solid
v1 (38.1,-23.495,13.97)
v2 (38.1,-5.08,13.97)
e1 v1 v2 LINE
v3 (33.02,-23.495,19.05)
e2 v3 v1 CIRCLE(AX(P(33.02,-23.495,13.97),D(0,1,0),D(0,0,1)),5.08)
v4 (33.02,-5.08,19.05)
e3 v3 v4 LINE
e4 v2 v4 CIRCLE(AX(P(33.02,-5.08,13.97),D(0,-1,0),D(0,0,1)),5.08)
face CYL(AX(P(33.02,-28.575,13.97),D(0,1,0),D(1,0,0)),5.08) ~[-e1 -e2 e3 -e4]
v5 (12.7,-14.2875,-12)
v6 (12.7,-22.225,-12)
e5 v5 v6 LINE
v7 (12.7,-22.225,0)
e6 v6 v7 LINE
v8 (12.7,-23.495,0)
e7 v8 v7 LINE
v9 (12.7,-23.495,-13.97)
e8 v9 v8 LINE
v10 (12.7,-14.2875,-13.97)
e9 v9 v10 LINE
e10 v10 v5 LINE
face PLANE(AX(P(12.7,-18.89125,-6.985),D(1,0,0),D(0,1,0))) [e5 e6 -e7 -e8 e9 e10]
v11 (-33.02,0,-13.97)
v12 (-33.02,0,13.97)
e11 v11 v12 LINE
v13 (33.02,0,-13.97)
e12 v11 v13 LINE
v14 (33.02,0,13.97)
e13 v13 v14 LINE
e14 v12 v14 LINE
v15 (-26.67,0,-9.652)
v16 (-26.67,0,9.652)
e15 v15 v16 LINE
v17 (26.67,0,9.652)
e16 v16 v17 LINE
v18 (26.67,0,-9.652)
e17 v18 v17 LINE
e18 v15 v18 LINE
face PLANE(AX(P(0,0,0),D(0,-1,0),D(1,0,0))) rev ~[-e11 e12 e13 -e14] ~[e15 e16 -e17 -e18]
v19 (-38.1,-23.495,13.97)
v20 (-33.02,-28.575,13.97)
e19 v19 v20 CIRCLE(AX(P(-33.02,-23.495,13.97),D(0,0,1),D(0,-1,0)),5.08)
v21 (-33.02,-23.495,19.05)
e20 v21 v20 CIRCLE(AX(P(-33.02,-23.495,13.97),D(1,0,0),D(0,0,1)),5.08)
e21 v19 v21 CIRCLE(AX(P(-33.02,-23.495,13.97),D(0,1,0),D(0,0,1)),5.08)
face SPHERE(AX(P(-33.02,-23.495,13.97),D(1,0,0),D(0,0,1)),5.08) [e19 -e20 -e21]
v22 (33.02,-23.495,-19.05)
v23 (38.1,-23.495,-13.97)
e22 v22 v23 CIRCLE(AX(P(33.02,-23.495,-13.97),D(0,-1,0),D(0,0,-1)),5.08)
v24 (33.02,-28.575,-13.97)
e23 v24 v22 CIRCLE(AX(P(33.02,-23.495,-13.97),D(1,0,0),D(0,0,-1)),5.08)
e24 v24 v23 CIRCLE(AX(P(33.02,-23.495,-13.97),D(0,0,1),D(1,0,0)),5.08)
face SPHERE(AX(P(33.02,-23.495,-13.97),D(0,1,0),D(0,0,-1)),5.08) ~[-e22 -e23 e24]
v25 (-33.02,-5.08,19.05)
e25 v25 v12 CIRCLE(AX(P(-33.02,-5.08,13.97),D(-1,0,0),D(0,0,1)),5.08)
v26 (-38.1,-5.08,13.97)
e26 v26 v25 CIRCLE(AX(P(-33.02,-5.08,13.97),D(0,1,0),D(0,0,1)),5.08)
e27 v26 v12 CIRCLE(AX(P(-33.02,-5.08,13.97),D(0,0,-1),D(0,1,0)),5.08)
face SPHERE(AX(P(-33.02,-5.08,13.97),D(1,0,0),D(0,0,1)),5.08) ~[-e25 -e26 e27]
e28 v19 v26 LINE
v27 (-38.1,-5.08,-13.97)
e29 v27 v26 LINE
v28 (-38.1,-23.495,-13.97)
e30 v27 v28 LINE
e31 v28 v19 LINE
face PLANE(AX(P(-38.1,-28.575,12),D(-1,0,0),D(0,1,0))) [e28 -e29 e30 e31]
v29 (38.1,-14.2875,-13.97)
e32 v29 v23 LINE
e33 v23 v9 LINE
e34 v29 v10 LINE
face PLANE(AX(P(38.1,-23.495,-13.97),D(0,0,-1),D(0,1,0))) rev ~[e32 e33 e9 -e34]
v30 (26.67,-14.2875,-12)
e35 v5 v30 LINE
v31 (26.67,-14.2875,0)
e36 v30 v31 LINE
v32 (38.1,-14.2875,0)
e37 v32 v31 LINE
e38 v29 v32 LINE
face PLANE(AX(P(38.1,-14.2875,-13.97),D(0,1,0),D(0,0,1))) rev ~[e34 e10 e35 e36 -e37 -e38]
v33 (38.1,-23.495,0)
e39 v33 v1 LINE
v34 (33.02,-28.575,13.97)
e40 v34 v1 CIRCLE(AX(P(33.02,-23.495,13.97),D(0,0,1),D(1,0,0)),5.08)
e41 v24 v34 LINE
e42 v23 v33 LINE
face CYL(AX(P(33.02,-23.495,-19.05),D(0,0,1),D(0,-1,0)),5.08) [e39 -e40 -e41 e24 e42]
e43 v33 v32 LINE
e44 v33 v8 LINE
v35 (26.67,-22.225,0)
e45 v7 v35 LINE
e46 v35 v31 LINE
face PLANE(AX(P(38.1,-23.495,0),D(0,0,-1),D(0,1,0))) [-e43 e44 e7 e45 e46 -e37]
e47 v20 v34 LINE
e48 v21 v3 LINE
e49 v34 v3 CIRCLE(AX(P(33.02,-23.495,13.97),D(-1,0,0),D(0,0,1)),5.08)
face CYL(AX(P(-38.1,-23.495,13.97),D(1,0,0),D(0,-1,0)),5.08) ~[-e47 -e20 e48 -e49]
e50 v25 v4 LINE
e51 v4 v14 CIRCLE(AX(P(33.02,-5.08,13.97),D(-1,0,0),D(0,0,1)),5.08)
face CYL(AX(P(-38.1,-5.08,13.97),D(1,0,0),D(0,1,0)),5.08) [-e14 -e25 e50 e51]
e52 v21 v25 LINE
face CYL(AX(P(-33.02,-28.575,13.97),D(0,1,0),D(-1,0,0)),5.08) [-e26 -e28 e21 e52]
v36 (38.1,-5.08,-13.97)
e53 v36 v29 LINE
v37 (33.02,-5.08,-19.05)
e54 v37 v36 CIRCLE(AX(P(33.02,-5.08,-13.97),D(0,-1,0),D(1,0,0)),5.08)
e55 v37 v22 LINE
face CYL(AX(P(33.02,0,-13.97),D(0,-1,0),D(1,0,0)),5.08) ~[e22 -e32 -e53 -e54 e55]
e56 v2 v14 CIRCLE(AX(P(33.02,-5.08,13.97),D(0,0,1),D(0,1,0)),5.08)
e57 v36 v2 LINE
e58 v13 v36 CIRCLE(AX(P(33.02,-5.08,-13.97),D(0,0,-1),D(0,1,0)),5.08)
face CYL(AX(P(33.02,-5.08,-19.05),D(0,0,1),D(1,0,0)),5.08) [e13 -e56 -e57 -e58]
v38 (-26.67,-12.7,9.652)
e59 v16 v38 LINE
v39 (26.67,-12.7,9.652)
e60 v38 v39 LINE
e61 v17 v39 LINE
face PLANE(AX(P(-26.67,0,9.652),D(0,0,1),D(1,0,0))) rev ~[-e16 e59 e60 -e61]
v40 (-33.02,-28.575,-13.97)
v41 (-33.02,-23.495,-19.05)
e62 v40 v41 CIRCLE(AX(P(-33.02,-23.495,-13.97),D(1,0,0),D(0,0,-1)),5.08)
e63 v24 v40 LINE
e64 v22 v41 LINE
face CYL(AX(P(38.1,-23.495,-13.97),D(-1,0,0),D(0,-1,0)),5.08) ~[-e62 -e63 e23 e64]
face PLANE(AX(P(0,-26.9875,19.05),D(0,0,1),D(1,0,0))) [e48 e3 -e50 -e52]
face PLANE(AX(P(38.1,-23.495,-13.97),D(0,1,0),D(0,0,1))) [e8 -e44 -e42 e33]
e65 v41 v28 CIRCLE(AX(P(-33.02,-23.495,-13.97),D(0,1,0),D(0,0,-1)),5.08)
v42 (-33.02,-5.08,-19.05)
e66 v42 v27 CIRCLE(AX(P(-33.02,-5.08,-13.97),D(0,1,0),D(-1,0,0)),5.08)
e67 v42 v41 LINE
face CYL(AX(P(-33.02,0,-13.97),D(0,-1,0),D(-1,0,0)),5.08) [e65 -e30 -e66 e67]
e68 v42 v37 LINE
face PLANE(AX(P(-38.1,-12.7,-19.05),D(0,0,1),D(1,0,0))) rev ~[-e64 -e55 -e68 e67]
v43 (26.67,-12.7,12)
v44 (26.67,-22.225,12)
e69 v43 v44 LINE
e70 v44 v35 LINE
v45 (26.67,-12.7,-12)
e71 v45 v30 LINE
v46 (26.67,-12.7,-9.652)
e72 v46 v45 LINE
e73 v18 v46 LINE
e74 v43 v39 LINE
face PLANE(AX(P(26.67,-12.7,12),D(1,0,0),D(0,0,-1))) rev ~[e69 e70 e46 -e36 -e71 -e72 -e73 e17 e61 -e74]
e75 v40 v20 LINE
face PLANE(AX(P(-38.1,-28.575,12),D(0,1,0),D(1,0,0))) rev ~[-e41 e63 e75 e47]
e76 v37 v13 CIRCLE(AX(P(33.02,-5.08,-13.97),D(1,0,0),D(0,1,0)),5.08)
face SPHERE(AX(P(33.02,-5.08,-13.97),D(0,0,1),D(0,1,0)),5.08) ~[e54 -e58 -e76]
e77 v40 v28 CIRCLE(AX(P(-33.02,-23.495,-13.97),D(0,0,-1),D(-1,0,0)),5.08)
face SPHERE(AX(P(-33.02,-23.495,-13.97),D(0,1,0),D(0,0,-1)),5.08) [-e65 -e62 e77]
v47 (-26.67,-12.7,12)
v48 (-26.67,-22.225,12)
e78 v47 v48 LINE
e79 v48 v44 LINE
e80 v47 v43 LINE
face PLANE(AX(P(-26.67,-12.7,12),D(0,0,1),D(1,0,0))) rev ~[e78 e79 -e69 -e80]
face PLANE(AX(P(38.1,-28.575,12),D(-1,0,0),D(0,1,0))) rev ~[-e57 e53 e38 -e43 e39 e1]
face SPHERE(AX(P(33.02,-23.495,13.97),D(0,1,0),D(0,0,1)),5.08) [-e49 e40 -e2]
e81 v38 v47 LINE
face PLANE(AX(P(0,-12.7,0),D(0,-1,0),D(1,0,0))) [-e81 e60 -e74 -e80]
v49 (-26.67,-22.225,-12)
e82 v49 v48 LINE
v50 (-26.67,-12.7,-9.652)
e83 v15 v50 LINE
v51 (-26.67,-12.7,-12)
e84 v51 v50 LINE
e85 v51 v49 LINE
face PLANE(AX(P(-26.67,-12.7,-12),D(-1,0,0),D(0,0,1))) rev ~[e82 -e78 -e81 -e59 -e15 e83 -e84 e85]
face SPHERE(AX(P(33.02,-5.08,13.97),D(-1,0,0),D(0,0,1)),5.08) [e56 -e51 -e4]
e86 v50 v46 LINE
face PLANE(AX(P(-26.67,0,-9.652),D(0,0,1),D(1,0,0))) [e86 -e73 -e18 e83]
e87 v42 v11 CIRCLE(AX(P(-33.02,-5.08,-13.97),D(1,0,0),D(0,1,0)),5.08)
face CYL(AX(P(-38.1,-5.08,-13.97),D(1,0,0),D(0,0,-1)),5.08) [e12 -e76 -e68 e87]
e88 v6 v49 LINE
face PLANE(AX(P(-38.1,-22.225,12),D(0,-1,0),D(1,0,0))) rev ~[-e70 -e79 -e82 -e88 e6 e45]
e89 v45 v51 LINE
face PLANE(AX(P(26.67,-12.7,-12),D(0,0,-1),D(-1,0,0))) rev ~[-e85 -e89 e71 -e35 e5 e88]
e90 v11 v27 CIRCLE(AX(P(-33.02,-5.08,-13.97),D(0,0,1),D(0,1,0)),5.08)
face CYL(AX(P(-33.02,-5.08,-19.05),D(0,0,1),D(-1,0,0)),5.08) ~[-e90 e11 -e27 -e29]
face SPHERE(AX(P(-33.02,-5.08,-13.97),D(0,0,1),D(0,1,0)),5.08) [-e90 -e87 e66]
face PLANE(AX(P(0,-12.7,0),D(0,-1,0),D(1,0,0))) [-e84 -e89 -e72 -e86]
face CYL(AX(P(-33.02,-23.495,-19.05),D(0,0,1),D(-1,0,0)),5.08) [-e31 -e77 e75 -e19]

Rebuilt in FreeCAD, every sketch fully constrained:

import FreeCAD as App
import Part
import Sketcher

V = App.Vector
Q = App.Units.Quantity


def edges_at(feature, points):
    """Names of the edges that pass closest to the given points."""
    edges = feature.Shape.Edges
    near = lambda p: min(range(len(edges)), key=lambda i: edges[i].distToShape(Part.Vertex(*p))[0])
    return sorted({f"Edge{near(p) + 1}" for p in points})

doc = App.newDocument("Part")
body = doc.addObject("PartDesign::Body", "Body")

# Sketch on XZ plane
sketch1 = body.newObject("Sketcher::SketchObject", "Sketch")
sketch1.AttachmentSupport = (doc.getObject("XZ_Plane"), [""])
sketch1.MapMode = "FlatFace"
sketch1.addGeometry(Part.LineSegment(V(-38, 19, 0), V(-38, -19, 0)), False)
sketch1.addGeometry(Part.LineSegment(V(-38, -19, 0), V(38, -19, 0)), False)
sketch1.addGeometry(Part.LineSegment(V(38, -19, 0), V(38, 19, 0)), False)
sketch1.addGeometry(Part.LineSegment(V(38, 19, 0), V(-38, 19, 0)), False)
sketch1.addGeometry(Part.LineSegment(V(27, -10, 0), V(-27, -10, 0)), False)
sketch1.addGeometry(Part.LineSegment(V(-27, -10, 0), V(-27, 10, 0)), False)
sketch1.addGeometry(Part.LineSegment(V(-27, 10, 0), V(27, 10, 0)), False)
sketch1.addGeometry(Part.LineSegment(V(27, 10, 0), V(27, -10, 0)), False)
sketch1.addConstraint(Sketcher.Constraint("Coincident", 0, 2, 1, 1))
sketch1.addConstraint(Sketcher.Constraint("Coincident", 1, 2, 2, 1))
sketch1.addConstraint(Sketcher.Constraint("Coincident", 2, 2, 3, 1))
sketch1.addConstraint(Sketcher.Constraint("Coincident", 3, 2, 0, 1))
sketch1.addConstraint(Sketcher.Constraint("Coincident", 4, 2, 5, 1))
sketch1.addConstraint(Sketcher.Constraint("Coincident", 5, 2, 6, 1))
sketch1.addConstraint(Sketcher.Constraint("Coincident", 6, 2, 7, 1))
sketch1.addConstraint(Sketcher.Constraint("Coincident", 7, 2, 4, 1))
sketch1.addConstraint(Sketcher.Constraint("Vertical", 0))
sketch1.addConstraint(Sketcher.Constraint("Horizontal", 1))
sketch1.addConstraint(Sketcher.Constraint("Vertical", 2))
sketch1.addConstraint(Sketcher.Constraint("Horizontal", 3))
sketch1.addConstraint(Sketcher.Constraint("Horizontal", 4))
sketch1.addConstraint(Sketcher.Constraint("Vertical", 5))
sketch1.addConstraint(Sketcher.Constraint("Horizontal", 6))
sketch1.addConstraint(Sketcher.Constraint("Vertical", 7))
sketch1.addConstraint(Sketcher.Constraint("Symmetric", 0, 2, 2, 2, -1, 1))
sketch1.addConstraint(Sketcher.Constraint("Symmetric", 4, 2, 6, 2, -1, 1))
sketch1.addConstraint(Sketcher.Constraint("DistanceX", 1, 1, 1, 2, Q("3 in")))
sketch1.addConstraint(Sketcher.Constraint("DistanceX", 4, 2, 4, 1, Q("2.1 in")))
sketch1.addConstraint(Sketcher.Constraint("DistanceY", 0, 2, 0, 1, Q("1.5 in")))
sketch1.addConstraint(Sketcher.Constraint("DistanceY", 5, 1, 5, 2, Q("0.76 in")))
pad1 = body.newObject("PartDesign::Pad", "Pad")
pad1.Profile = sketch1
pad1.Length = Q("0.5 in")

# Sketch on XZ plane
sketch2 = body.newObject("Sketcher::SketchObject", "Sketch001")
sketch2.AttachmentSupport = (doc.getObject("XZ_Plane"), [""])
sketch2.MapMode = "FlatFace"
sketch2.AttachmentOffset = App.Placement(V(0, 0, 0.5 * 25.4), App.Rotation())
sketch2.addGeometry(Part.LineSegment(V(-38, 19, 0), V(-38, -19, 0)), False)
sketch2.addGeometry(Part.LineSegment(V(-38, -19, 0), V(38, -19, 0)), False)
sketch2.addGeometry(Part.LineSegment(V(38, -19, 0), V(38, 19, 0)), False)
sketch2.addGeometry(Part.LineSegment(V(38, 19, 0), V(-38, 19, 0)), False)
sketch2.addGeometry(Part.LineSegment(V(-27, -12, 0), V(-27, 12, 0)), False)
sketch2.addGeometry(Part.LineSegment(V(-27, 12, 0), V(27, 12, 0)), False)
sketch2.addGeometry(Part.LineSegment(V(27, 12, 0), V(27, -12, 0)), False)
sketch2.addGeometry(Part.LineSegment(V(27, -12, 0), V(-27, -12, 0)), False)
sketch2.addConstraint(Sketcher.Constraint("Coincident", 0, 2, 1, 1))
sketch2.addConstraint(Sketcher.Constraint("Coincident", 1, 2, 2, 1))
sketch2.addConstraint(Sketcher.Constraint("Coincident", 2, 2, 3, 1))
sketch2.addConstraint(Sketcher.Constraint("Coincident", 3, 2, 0, 1))
sketch2.addConstraint(Sketcher.Constraint("Coincident", 4, 2, 5, 1))
sketch2.addConstraint(Sketcher.Constraint("Coincident", 5, 2, 6, 1))
sketch2.addConstraint(Sketcher.Constraint("Coincident", 6, 2, 7, 1))
sketch2.addConstraint(Sketcher.Constraint("Coincident", 7, 2, 4, 1))
sketch2.addConstraint(Sketcher.Constraint("Vertical", 0))
sketch2.addConstraint(Sketcher.Constraint("Horizontal", 1))
sketch2.addConstraint(Sketcher.Constraint("Vertical", 2))
sketch2.addConstraint(Sketcher.Constraint("Horizontal", 3))
sketch2.addConstraint(Sketcher.Constraint("Vertical", 4))
sketch2.addConstraint(Sketcher.Constraint("Horizontal", 5))
sketch2.addConstraint(Sketcher.Constraint("Vertical", 6))
sketch2.addConstraint(Sketcher.Constraint("Horizontal", 7))
sketch2.addConstraint(Sketcher.Constraint("Symmetric", 0, 2, 2, 2, -1, 1))
sketch2.addConstraint(Sketcher.Constraint("Symmetric", 4, 2, 6, 2, -1, 1))
sketch2.addConstraint(Sketcher.Constraint("DistanceX", 1, 1, 1, 2, Q("3 in")))
sketch2.addConstraint(Sketcher.Constraint("DistanceX", 5, 1, 5, 2, Q("2.1 in")))
sketch2.addConstraint(Sketcher.Constraint("DistanceY", 0, 2, 0, 1, Q("1.5 in")))
sketch2.addConstraint(Sketcher.Constraint("DistanceY", 4, 1, 4, 2, 24.0))
pad2 = body.newObject("PartDesign::Pad", "Pad001")
pad2.Profile = sketch2
pad2.Length = Q("0.5 in")

# Sketch on XY plane
sketch3 = body.newObject("Sketcher::SketchObject", "Sketch002")
sketch3.AttachmentSupport = (doc.getObject("XY_Plane"), [""])
sketch3.MapMode = "FlatFace"
sketch3.AttachmentOffset = App.Placement(V(0, 0, 12), App.Rotation())
sketch3.addGeometry(Part.LineSegment(V(38, -22, 0), V(38, -29, 0)), False)
sketch3.addGeometry(Part.LineSegment(V(38, -29, 0), V(-38, -29, 0)), False)
sketch3.addGeometry(Part.LineSegment(V(-38, -29, 0), V(-38, -22, 0)), False)
sketch3.addGeometry(Part.LineSegment(V(-38, -22, 0), V(38, -22, 0)), False)
sketch3.addConstraint(Sketcher.Constraint("Coincident", 0, 2, 1, 1))
sketch3.addConstraint(Sketcher.Constraint("Coincident", 1, 2, 2, 1))
sketch3.addConstraint(Sketcher.Constraint("Coincident", 2, 2, 3, 1))
sketch3.addConstraint(Sketcher.Constraint("Coincident", 3, 2, 0, 1))
sketch3.addConstraint(Sketcher.Constraint("Vertical", 0))
sketch3.addConstraint(Sketcher.Constraint("Horizontal", 1))
sketch3.addConstraint(Sketcher.Constraint("Vertical", 2))
sketch3.addConstraint(Sketcher.Constraint("Horizontal", 3))
sketch3.addConstraint(Sketcher.Constraint("DistanceX", 1, 2, 1, 1, Q("3 in")))
sketch3.addConstraint(Sketcher.Constraint("DistanceY", 0, 2, 0, 1, Q("0.25 in")))
sketch3.addConstraint(Sketcher.Constraint("DistanceX", -1, 1, 0, 2, Q("1.5 in")))
sketch3.addConstraint(Sketcher.Constraint("DistanceY", 0, 2, -1, 1, Q("1.125 in")))
pad3 = body.newObject("PartDesign::Pad", "Pad002")
pad3.Profile = sketch3
pad3.Type = "UpToLast"
pad3.Reversed = True

# Sketch on XY plane
sketch4 = body.newObject("Sketcher::SketchObject", "Sketch003")
sketch4.AttachmentSupport = (doc.getObject("XY_Plane"), [""])
sketch4.MapMode = "FlatFace"
sketch4.AttachmentOffset = App.Placement(V(0, 0, 12), App.Rotation())
sketch4.addGeometry(Part.LineSegment(V(-38.1, -25.4, 0), V(-38.1, -28.6, 0)), False)
sketch4.addGeometry(Part.LineSegment(V(-38.1, -28.6, 0), V(38.1, -28.6, 0)), False)
sketch4.addGeometry(Part.LineSegment(V(38.1, -28.6, 0), V(38.1, -25.4, 0)), False)
sketch4.addGeometry(Part.LineSegment(V(38.1, -25.4, 0), V(-38.1, -25.4, 0)), False)
sketch4.addConstraint(Sketcher.Constraint("Coincident", 0, 2, 1, 1))
sketch4.addConstraint(Sketcher.Constraint("Coincident", 1, 2, 2, 1))
sketch4.addConstraint(Sketcher.Constraint("Coincident", 2, 2, 3, 1))
sketch4.addConstraint(Sketcher.Constraint("Coincident", 3, 2, 0, 1))
sketch4.addConstraint(Sketcher.Constraint("Vertical", 0))
sketch4.addConstraint(Sketcher.Constraint("Horizontal", 1))
sketch4.addConstraint(Sketcher.Constraint("Vertical", 2))
sketch4.addConstraint(Sketcher.Constraint("Horizontal", 3))
sketch4.addConstraint(Sketcher.Constraint("DistanceX", 1, 1, 1, 2, Q("3 in")))
sketch4.addConstraint(Sketcher.Constraint("DistanceY", 2, 2, -1, 1, Q("1 in")))
sketch4.addConstraint(Sketcher.Constraint("DistanceX", 0, 2, -1, 1, Q("1.5 in")))
sketch4.addConstraint(Sketcher.Constraint("DistanceY", 0, 2, 0, 1, Q("0.125 in")))
pad4 = body.newObject("PartDesign::Pad", "Pad003")
pad4.Profile = sketch4
pad4.Length = 7.05
doc.recompute()

fillet = body.newObject("PartDesign::Fillet", "Fillet")
fillet.Base = (pad4, edges_at(pad4, [
    (0, 0, 19.05),
    (38.1, -14.287, 19.05),
    (0, -28.575, 19.05),
    (-38.1, -14.287, 19.05),
    (-38.1, 0, 0),
    (38.1, 0, 0),
    (0, 0, -19.05),
    (38.1, -14.287, -19.05),
    (-38.1, -14.287, -19.05),
    (0, -28.575, -19.05),
    (38.1, -28.575, 0),
    (-38.1, -28.575, 0),
]))
fillet.Radius = Q("0.2 in")

# Sketch on YZ plane
sketch5 = body.newObject("Sketcher::SketchObject", "Sketch004")
sketch5.AttachmentSupport = (doc.getObject("YZ_Plane"), [""])
sketch5.MapMode = "FlatFace"
sketch5.AttachmentOffset = App.Placement(V(0, 0, 1.5 * 25.4), App.Rotation())
sketch5.addGeometry(Part.LineSegment(V(-23, 0, 0), V(-23, -14, 0)), False)
sketch5.addGeometry(Part.LineSegment(V(-23, -14, 0), V(-14, -14, 0)), False)
sketch5.addGeometry(Part.LineSegment(V(-14, -14, 0), V(-14, 0, 0)), False)
sketch5.addGeometry(Part.LineSegment(V(-14, 0, 0), V(-23, 0, 0)), False)
sketch5.addConstraint(Sketcher.Constraint("Coincident", 0, 2, 1, 1))
sketch5.addConstraint(Sketcher.Constraint("Coincident", 1, 2, 2, 1))
sketch5.addConstraint(Sketcher.Constraint("Coincident", 2, 2, 3, 1))
sketch5.addConstraint(Sketcher.Constraint("Coincident", 3, 2, 0, 1))
sketch5.addConstraint(Sketcher.Constraint("Vertical", 0))
sketch5.addConstraint(Sketcher.Constraint("Horizontal", 1))
sketch5.addConstraint(Sketcher.Constraint("Vertical", 2))
sketch5.addConstraint(Sketcher.Constraint("Horizontal", 3))
sketch5.addConstraint(Sketcher.Constraint("PointOnObject", 2, 2, -1))
sketch5.addConstraint(Sketcher.Constraint("DistanceY", 0, 2, 0, 1, Q("0.55 in")))
sketch5.addConstraint(Sketcher.Constraint("DistanceX", 1, 1, 1, 2, Q("0.3625 in")))
sketch5.addConstraint(Sketcher.Constraint("DistanceX", 0, 2, -1, 1, Q("0.925 in")))
pocket1 = body.newObject("PartDesign::Pocket", "Pocket")
pocket1.Profile = sketch5
pocket1.Length = Q("1 in")

doc.recompute()
